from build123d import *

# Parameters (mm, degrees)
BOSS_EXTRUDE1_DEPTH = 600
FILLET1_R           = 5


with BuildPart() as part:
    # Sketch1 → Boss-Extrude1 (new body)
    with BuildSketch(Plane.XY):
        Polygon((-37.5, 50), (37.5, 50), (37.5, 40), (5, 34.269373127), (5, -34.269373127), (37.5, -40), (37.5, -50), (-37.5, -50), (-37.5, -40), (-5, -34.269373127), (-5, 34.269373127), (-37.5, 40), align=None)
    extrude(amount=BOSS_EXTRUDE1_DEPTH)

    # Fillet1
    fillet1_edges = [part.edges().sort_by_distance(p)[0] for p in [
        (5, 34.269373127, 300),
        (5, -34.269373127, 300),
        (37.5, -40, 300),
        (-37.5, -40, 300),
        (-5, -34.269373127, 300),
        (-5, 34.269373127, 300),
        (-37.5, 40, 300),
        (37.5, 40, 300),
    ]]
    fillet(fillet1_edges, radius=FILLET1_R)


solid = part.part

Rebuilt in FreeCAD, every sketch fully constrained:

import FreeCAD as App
import Part
import Sketcher

V = App.Vector
Q = App.Units.Quantity


def edges_at(feature, points):
    """Names of the edges that pass closest to the given points."""
    edges = feature.Shape.Edges
    near = lambda p: min(range(len(edges)), key=lambda i: edges[i].distToShape(Part.Vertex(*p))[0])
    return sorted({f"Edge{near(p) + 1}" for p in points})


def add_polygon(sketch, points):
    """Adds a closed chain of lines whose ends are joined by coincident constraints."""
    first, n = sketch.GeometryCount, len(points)
    for a, b in zip(points, points[1:] + points[:1]):
        sketch.addGeometry(Part.LineSegment(App.Vector(*a, 0), App.Vector(*b, 0)), False)
    for i in range(n):
        sketch.addConstraint(Sketcher.Constraint("Coincident", first + i, 2, first + (i + 1) % n, 1))

doc = App.newDocument("Part")
params = doc.addObject("Spreadsheet::Sheet", "Params")
for row, (alias, value) in enumerate([
    ("sketch1_width", "75 mm"),
    ("sketch1_height", "10 mm"),
    ("pad1_length", "600 mm"),
    ("fillet_radius", "5 mm"),
], start=1):
    params.set(f"A{row}", alias)
    params.set(f"B{row}", "=" + value)
    params.setAlias(f"B{row}", alias)

body = doc.addObject("PartDesign::Body", "Body")

# Sketch on XY plane
sketch1 = body.newObject("Sketcher::SketchObject", "Sketch")
sketch1.AttachmentSupport = (doc.getObject("XY_Plane"), [""])
sketch1.MapMode = "FlatFace"
add_polygon(sketch1, [(38, 50), (-38, 50), (-38, 40), (-5, 34), (-5, -34), (-38, -40), (-38, -50), (38, -50), (38, -40), (5, -34), (5, 34), (38, 40)])  # lines 0-11
sketch1.addConstraint(Sketcher.Constraint("Horizontal", 0))
sketch1.addConstraint(Sketcher.Constraint("Vertical", 1))
sketch1.addConstraint(Sketcher.Constraint("Vertical", 3))
sketch1.addConstraint(Sketcher.Constraint("Vertical", 5))
sketch1.addConstraint(Sketcher.Constraint("Horizontal", 6))
sketch1.addConstraint(Sketcher.Constraint("Vertical", 7))
sketch1.addConstraint(Sketcher.Constraint("Vertical", 9))
sketch1.addConstraint(Sketcher.Constraint("Vertical", 11))
sketch1.addConstraint(Sketcher.Constraint("Symmetric", 0, 2, 6, 2, -1, 1))
sketch1.addConstraint(Sketcher.Constraint("Symmetric", 2, 2, 8, 2, -1, 1))
sketch1.addConstraint(Sketcher.Constraint("Symmetric", 4, 2, 10, 2, -1, 1))
sketch1.addConstraint(Sketcher.Constraint("Symmetric", 4, 2, 7, 2, -2))
sketch1.addConstraint(Sketcher.Constraint("Parallel", 2, 8))
sketch1.addConstraint(Sketcher.Constraint("Parallel", 4, 10))
sketch1.addConstraint(Sketcher.Constraint("Horizontal", 3, 2, 8, 2))
sketch1.addConstraint(Sketcher.Constraint("DistanceX", 0, 2, 0, 1, Q("75 mm")))
sketch1.addConstraint(Sketcher.Constraint("DistanceY", 1, 2, 1, 1, Q("10 mm")))
sketch1.addConstraint(Sketcher.Constraint("Angle", 2, Q("-10 deg")))
sketch1.addConstraint(Sketcher.Constraint("DistanceY", -1, 1, 0, 2, Q("50 mm")))
sketch1.addConstraint(Sketcher.Constraint("DistanceX", 2, 2, -1, 1, Q("5 mm")))
sketch1.setExpression("Constraints[27]", "Params.sketch1_width")
sketch1.setExpression("Constraints[28]", "Params.sketch1_height")
pad1 = body.newObject("PartDesign::Pad", "Pad")
pad1.Profile = sketch1
pad1.setExpression("Length", "Params.pad1_length")
doc.recompute()

fillet = body.newObject("PartDesign::Fillet", "Fillet")
fillet.Base = (pad1, edges_at(pad1, [
    (5, 34.269, 300),
    (5, -34.269, 300),
    (37.5, -40, 300),
    (-37.5, -40, 300),
    (-5, -34.269, 300),
    (-5, 34.269, 300),
    (-37.5, 40, 300),
    (37.5, 40, 300),
]))
fillet.setExpression("Radius", "Params.fillet_radius")

doc.recompute()
